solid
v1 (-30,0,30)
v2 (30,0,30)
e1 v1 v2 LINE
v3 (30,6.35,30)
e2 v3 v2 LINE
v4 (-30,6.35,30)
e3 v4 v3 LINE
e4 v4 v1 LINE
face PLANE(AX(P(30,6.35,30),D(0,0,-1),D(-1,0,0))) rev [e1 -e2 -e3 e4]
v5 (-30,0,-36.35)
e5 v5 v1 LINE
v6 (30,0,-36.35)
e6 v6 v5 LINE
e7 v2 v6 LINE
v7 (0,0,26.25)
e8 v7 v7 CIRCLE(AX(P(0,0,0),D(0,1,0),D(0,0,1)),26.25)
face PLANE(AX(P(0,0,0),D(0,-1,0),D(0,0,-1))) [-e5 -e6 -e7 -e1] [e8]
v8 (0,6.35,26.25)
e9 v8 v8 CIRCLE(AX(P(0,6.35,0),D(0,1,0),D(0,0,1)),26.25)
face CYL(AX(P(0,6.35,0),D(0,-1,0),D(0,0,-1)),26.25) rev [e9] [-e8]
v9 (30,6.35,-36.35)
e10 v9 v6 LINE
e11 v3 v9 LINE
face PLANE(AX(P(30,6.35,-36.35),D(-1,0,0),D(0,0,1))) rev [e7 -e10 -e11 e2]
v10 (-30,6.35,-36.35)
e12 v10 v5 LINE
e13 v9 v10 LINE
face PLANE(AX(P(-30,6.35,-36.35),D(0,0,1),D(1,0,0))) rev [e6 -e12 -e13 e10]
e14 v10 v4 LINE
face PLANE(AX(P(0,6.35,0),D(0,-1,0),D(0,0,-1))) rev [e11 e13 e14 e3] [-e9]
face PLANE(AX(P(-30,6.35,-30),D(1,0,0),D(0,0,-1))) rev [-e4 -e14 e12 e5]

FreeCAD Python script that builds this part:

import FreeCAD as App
import Part
import Sketcher

V = App.Vector
Q = App.Units.Quantity


def add_polygon(sketch, points):
    """Adds a closed chain of lines whose ends are joined by coincident constraints."""
    first, n = sketch.GeometryCount, len(points)
    for a, b in zip(points, points[1:] + points[:1]):
        sketch.addGeometry(Part.LineSegment(App.Vector(*a, 0), App.Vector(*b, 0)), False)
    for i in range(n):
        sketch.addConstraint(Sketcher.Constraint("Coincident", first + i, 2, first + (i + 1) % n, 1))

doc = App.newDocument("Part")
params = doc.addObject("Spreadsheet::Sheet", "Params")
for row, (alias, value) in enumerate([
    ("sketch1_diameter", "52.5 mm"),
    ("sketch1_width", "60 mm"),
    ("sketch1_height", "66.35 mm"),
    ("pad1_length", "6.35 mm"),
], start=1):
    params.set(f"A{row}", alias)
    params.set(f"B{row}", "=" + value)
    params.setAlias(f"B{row}", alias)

body = doc.addObject("PartDesign::Body", "Body")

sketch1 = body.newObject("Sketcher::SketchObject", "Sketch")
sketch1.AttachmentSupport = (doc.getObject("XZ_Plane"), [""])
sketch1.MapMode = "FlatFace"
add_polygon(sketch1, [(-30, -36), (-30, 30), (30, 30), (30, -36)])
sketch1.addGeometry(Part.Circle(V(0, 0, 0), V(0, 0, 1), 26), False)
sketch1.addConstraint(Sketcher.Constraint("Vertical", 0))
sketch1.addConstraint(Sketcher.Constraint("Horizontal", 1))
sketch1.addConstraint(Sketcher.Constraint("Vertical", 2))
sketch1.addConstraint(Sketcher.Constraint("Horizontal", 3))
sketch1.addConstraint(Sketcher.Constraint("Coincident", 4, 3, -1, 1))
sketch1.addConstraint(Sketcher.Constraint("Diameter", 4, Q("52.5 mm")))
sketch1.addConstraint(Sketcher.Constraint("DistanceX", 1, 1, 1, 2, Q("60 mm")))
sketch1.addConstraint(Sketcher.Constraint("DistanceX", 0, 2, -1, 1, Q("30 mm")))
sketch1.addConstraint(Sketcher.Constraint("DistanceY", -1, 1, 0, 2, Q("30 mm")))
sketch1.addConstraint(Sketcher.Constraint("DistanceY", 0, 1, 0, 2, Q("66.35 mm")))
sketch1.setExpression("Constraints[9]", "Params.sketch1_diameter")
sketch1.setExpression("Constraints[10]", "Params.sketch1_width")
sketch1.setExpression("Constraints[13]", "Params.sketch1_height")
pad1 = body.newObject("PartDesign::Pad", "Pad")
pad1.Profile = sketch1
pad1.setExpression("Length", "Params.pad1_length")
pad1.Reversed = True

doc.recompute()
